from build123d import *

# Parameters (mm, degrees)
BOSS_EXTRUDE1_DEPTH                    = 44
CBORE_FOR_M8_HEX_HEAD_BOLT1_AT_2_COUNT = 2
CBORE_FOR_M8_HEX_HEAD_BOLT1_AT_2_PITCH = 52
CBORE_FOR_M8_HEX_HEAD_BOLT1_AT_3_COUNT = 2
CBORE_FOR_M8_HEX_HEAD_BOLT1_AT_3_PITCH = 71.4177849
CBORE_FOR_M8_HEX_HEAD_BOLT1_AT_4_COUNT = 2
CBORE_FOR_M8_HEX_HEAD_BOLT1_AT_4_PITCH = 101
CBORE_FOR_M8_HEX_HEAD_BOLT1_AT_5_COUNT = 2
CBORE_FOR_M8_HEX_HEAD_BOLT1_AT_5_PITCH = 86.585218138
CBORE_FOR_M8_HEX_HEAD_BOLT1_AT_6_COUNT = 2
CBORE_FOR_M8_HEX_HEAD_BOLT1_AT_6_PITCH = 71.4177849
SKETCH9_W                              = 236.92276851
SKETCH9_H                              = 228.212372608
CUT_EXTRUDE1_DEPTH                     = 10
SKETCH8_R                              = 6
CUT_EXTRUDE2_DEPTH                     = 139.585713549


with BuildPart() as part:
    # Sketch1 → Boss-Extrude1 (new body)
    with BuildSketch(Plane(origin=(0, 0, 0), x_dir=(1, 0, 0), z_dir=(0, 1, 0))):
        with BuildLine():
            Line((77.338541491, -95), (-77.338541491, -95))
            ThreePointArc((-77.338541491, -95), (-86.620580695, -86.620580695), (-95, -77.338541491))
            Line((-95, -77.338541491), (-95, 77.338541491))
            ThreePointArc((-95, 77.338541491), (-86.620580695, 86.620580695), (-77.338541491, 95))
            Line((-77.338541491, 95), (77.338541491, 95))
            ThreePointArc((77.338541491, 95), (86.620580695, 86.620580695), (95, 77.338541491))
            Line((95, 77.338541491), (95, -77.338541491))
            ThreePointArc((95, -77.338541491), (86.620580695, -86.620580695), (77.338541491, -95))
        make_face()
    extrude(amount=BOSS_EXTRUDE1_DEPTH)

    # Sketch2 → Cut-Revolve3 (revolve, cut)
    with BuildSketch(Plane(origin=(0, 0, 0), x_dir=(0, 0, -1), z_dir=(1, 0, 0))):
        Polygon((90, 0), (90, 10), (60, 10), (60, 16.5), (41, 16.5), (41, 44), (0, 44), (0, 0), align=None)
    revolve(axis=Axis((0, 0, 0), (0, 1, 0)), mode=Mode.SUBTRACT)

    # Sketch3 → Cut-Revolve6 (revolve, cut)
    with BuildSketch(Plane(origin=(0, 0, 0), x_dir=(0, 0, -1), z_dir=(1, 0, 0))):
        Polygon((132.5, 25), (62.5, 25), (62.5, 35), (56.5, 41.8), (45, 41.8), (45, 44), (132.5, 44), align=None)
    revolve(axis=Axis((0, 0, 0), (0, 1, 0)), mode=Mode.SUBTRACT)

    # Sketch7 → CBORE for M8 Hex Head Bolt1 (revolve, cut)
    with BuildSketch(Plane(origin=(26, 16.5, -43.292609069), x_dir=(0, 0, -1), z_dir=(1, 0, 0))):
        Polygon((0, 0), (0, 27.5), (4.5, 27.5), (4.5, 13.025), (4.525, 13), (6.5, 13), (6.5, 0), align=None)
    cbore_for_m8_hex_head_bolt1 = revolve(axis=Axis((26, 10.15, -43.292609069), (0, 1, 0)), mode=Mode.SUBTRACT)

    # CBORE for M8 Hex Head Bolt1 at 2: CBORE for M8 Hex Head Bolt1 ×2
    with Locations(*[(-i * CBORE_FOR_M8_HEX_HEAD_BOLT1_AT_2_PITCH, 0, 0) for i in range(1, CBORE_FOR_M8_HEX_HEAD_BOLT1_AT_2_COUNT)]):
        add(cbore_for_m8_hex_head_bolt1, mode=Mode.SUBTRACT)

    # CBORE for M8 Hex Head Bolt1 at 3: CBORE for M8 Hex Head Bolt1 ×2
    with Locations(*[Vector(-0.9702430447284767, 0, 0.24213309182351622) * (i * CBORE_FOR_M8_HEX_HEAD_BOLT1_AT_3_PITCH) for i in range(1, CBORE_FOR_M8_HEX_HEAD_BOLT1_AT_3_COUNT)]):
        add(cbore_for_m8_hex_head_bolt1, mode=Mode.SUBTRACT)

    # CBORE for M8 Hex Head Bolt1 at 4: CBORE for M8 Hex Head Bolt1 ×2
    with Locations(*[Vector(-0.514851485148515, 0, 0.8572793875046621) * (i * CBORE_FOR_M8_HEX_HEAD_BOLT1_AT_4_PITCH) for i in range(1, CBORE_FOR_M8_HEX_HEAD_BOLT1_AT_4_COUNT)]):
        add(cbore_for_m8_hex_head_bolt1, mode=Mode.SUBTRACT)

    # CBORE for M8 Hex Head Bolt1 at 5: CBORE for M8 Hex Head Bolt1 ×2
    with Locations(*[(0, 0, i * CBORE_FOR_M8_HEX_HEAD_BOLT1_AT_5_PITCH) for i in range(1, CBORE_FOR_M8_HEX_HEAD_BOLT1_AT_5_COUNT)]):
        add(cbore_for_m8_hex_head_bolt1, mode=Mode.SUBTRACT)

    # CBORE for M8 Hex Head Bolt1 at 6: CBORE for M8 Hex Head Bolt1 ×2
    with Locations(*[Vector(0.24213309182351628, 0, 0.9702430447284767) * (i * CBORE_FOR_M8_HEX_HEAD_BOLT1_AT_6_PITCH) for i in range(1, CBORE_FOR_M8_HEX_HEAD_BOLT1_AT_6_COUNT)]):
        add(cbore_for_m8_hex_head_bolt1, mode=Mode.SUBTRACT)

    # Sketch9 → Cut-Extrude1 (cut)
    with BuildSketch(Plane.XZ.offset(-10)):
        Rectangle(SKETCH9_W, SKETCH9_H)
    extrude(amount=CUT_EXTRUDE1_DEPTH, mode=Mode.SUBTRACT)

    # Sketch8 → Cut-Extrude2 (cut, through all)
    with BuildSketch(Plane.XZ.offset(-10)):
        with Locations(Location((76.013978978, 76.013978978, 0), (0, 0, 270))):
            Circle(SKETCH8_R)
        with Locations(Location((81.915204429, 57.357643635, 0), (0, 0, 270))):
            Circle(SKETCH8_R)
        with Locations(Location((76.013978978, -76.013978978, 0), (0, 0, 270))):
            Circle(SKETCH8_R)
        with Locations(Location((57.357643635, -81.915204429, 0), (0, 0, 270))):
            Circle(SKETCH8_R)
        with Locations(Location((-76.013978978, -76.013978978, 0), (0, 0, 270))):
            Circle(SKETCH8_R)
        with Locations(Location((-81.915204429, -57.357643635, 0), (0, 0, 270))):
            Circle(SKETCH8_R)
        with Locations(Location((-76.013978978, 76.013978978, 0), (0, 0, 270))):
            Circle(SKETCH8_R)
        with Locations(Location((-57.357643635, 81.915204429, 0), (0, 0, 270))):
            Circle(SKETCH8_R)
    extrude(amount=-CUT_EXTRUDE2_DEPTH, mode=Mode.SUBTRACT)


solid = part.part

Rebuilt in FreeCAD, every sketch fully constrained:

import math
import FreeCAD as App
import Part
import Sketcher
from FreeCAD import Vector
Q = App.Units.Quantity


def add_polygon(sketch, points):
    """Adds a closed chain of lines whose ends are joined by coincident constraints."""
    first, n = sketch.GeometryCount, len(points)
    for a, b in zip(points, points[1:] + points[:1]):
        sketch.addGeometry(Part.LineSegment(App.Vector(*a, 0), App.Vector(*b, 0)), False)
    for i in range(n):
        sketch.addConstraint(Sketcher.Constraint("Coincident", first + i, 2, first + (i + 1) % n, 1))

doc = App.newDocument("Part")
params = doc.addObject("Spreadsheet::Sheet", "Params")
for row, (alias, value) in enumerate([
    ("sketch1_radius", "122.5 mm"),
    ("pad1_length", "44 mm"),
    ("sketch2_width", "10 mm"),
    ("sketch2_width2", "44 mm"),
    ("sketch2_height", "30 mm"),
    ("sketch2_height2", "19 mm"),
    ("sketch2_height3", "41 mm"),
    ("groove_angle", "360 deg"),
    ("sketch3_width", "19 mm"),
    ("sketch3_width2", "10 mm"),
    ("sketch3_height", "70 mm"),
    ("sketch3_width3", "2.2 mm"),
    ("sketch3_height2", "87.5 mm"),
    ("groove2_angle", "360 deg"),
    ("sketch4_width", "13 mm"),
    ("sketch4_width2", "27.5 mm"),
    ("sketch4_height", "6.5 mm"),
    ("sketch4_height2", "4.5 mm"),
    ("groove3_angle", "360 deg"),
    ("linearpattern_pitch", "52 mm"),
    ("linearpattern2_pitch", "71.417785 mm"),
    ("linearpattern3_pitch", "101 mm"),
    ("linearpattern4_pitch", "86.585218 mm"),
    ("linearpattern5_pitch", "71.417785 mm"),
    ("pocket1_length", "10 mm"),
    ("sketch6_diameter", "12 mm"),
], start=1):
    params.set(f"A{row}", alias)
    params.set(f"B{row}", "=" + value)
    params.setAlias(f"B{row}", alias)

body = doc.addObject("PartDesign::Body", "Body")

# Sketch on XZ plane
sketch1 = body.newObject("Sketcher::SketchObject", "Sketch")
sketch1.AttachmentSupport = (doc.getObject("XZ_Plane"), [""])
sketch1.MapMode = "FlatFace"
sketch1.addGeometry(Part.LineSegment(Vector(-77, 95, 0), Vector(77, 95, 0)), False)
sketch1.addGeometry(Part.ArcOfCircle(Part.Circle(Vector(0, 0, 0), Vector(0, 0, 1), 123), math.radians(39.15), math.radians(50.85)), False)
sketch1.addGeometry(Part.LineSegment(Vector(95, 77, 0), Vector(95, -77, 0)), False)
sketch1.addGeometry(Part.ArcOfCircle(Part.Circle(Vector(0, 0, 0), Vector(0, 0, 1), 123), math.radians(-50.85), math.radians(-39.15)), False)
sketch1.addGeometry(Part.LineSegment(Vector(77, -95, 0), Vector(-77, -95, 0)), False)
sketch1.addGeometry(Part.ArcOfCircle(Part.Circle(Vector(0, 0, 0), Vector(0, 0, 1), 123), math.radians(-140.85), math.radians(-129.15)), False)
sketch1.addGeometry(Part.LineSegment(Vector(-95, -77, 0), Vector(-95, 77, 0)), False)
sketch1.addGeometry(Part.ArcOfCircle(Part.Circle(Vector(0, 0, 0), Vector(0, 0, 1), 123), math.radians(129.15), math.radians(140.85)), False)
sketch1.addConstraint(Sketcher.Constraint("Coincident", 0, 2, 1, 2))
sketch1.addConstraint(Sketcher.Constraint("Coincident", 1, 1, 2, 1))
sketch1.addConstraint(Sketcher.Constraint("Coincident", 2, 2, 3, 2))
sketch1.addConstraint(Sketcher.Constraint("Coincident", 3, 1, 4, 1))
sketch1.addConstraint(Sketcher.Constraint("Coincident", 4, 2, 5, 2))
sketch1.addConstraint(Sketcher.Constraint("Coincident", 5, 1, 6, 1))
sketch1.addConstraint(Sketcher.Constraint("Coincident", 6, 2, 7, 2))
sketch1.addConstraint(Sketcher.Constraint("Coincident", 7, 1, 0, 1))
sketch1.addConstraint(Sketcher.Constraint("Horizontal", 0))
sketch1.addConstraint(Sketcher.Constraint("Vertical", 2))
sketch1.addConstraint(Sketcher.Constraint("Horizontal", 4))
sketch1.addConstraint(Sketcher.Constraint("Vertical", 6))
sketch1.addConstraint(Sketcher.Constraint("Coincident", 1, 3, -1, 1))
sketch1.addConstraint(Sketcher.Constraint("Coincident", 3, 3, -1, 1))
sketch1.addConstraint(Sketcher.Constraint("Coincident", 5, 3, -1, 1))
sketch1.addConstraint(Sketcher.Constraint("Coincident", 7, 3, -1, 1))
sketch1.addConstraint(Sketcher.Constraint("Equal", 1, 3))
sketch1.addConstraint(Sketcher.Constraint("Equal", 3, 5))
sketch1.addConstraint(Sketcher.Constraint("Equal", 5, 7))
sketch1.addConstraint(Sketcher.Constraint("Horizontal", 2, 2, 5, 1))
sketch1.addConstraint(Sketcher.Constraint("Vertical", 0, 2, 3, 1))
sketch1.addConstraint(Sketcher.Constraint("Equal", 4, 2))
sketch1.addConstraint(Sketcher.Constraint("Radius", 1, 122.5))
sketch1.addConstraint(Sketcher.Constraint("DistanceY", -1, 1, 0, 2, 95.0))
sketch1.setExpression("Constraints[22]", "Params.sketch1_radius")
pad1 = body.newObject("PartDesign::Pad", "Pad")
pad1.Profile = sketch1
pad1.setExpression("Length", "Params.pad1_length")
pad1.Reversed = True

# Sketch on YZ plane
sketch2 = body.newObject("Sketcher::SketchObject", "Sketch001")
sketch2.AttachmentSupport = (doc.getObject("YZ_Plane"), [""])
sketch2.MapMode = "FlatFace"
add_polygon(sketch2, [(0, -90), (10, -90), (10, -60), (16, -60), (16, -41), (44, -41), (44, 0), (0, 0)])  # lines 0-7
sketch2.addConstraint(Sketcher.Constraint("Horizontal", 0))
sketch2.addConstraint(Sketcher.Constraint("Vertical", 1))
sketch2.addConstraint(Sketcher.Constraint("Horizontal", 2))
sketch2.addConstraint(Sketcher.Constraint("Vertical", 3))
sketch2.addConstraint(Sketcher.Constraint("Horizontal", 4))
sketch2.addConstraint(Sketcher.Constraint("Vertical", 5))
sketch2.addConstraint(Sketcher.Constraint("Horizontal", 6))
sketch2.addConstraint(Sketcher.Constraint("Vertical", 7))
sketch2.addConstraint(Sketcher.Constraint("Coincident", 6, 2, -1, 1))
sketch2.addConstraint(Sketcher.Constraint("DistanceX", 0, 1, 0, 2, 10.0))
sketch2.addConstraint(Sketcher.Constraint("DistanceX", 6, 2, 6, 1, 44.0))
sketch2.addConstraint(Sketcher.Constraint("DistanceY", 1, 1, 1, 2, 30.0))
sketch2.addConstraint(Sketcher.Constraint("DistanceY", 3, 1, 3, 2, 19.0))
sketch2.addConstraint(Sketcher.Constraint("DistanceY", 5, 1, 5, 2, 41.0))
sketch2.addConstraint(Sketcher.Constraint("DistanceX", 2, 1, 2, 2, 6.5))
sketch2.setExpression("Constraints[17]", "Params.sketch2_width")
sketch2.setExpression("Constraints[18]", "Params.sketch2_width2")
sketch2.setExpression("Constraints[19]", "Params.sketch2_height")
sketch2.setExpression("Constraints[20]", "Params.sketch2_height2")
sketch2.setExpression("Constraints[21]", "Params.sketch2_height3")
groove = body.newObject("PartDesign::Groove", "Groove")
groove.Profile = sketch2
groove.ReferenceAxis = (sketch2, ["H_Axis"])
groove.setExpression("Angle", "Params.groove_angle")

# Sketch on YZ plane
sketch3 = body.newObject("Sketcher::SketchObject", "Sketch002")
sketch3.AttachmentSupport = (doc.getObject("YZ_Plane"), [""])
sketch3.MapMode = "FlatFace"
add_polygon(sketch3, [(25, -62.5), (25, -132.5), (44, -132.5), (44, -45), (41.8, -45), (41.8, -56.5), (35, -62.5)])  # lines 0-6
sketch3.addConstraint(Sketcher.Constraint("Vertical", 0))
sketch3.addConstraint(Sketcher.Constraint("Horizontal", 1))
sketch3.addConstraint(Sketcher.Constraint("Vertical", 2))
sketch3.addConstraint(Sketcher.Constraint("Horizontal", 3))
sketch3.addConstraint(Sketcher.Constraint("Vertical", 4))
sketch3.addConstraint(Sketcher.Constraint("Horizontal", 6))
sketch3.addConstraint(Sketcher.Constraint("DistanceX", 1, 1, 1, 2, 19.0))
sketch3.addConstraint(Sketcher.Constraint("DistanceX", 6, 2, 6, 1, 10.0))
sketch3.addConstraint(Sketcher.Constraint("DistanceY", 0, 2, 0, 1, 70.0))
sketch3.addConstraint(Sketcher.Constraint("DistanceX", 3, 2, 3, 1, 2.2))
sketch3.addConstraint(Sketcher.Constraint("DistanceY", 2, 1, 2, 2, 87.5))
sketch3.addConstraint(Sketcher.Constraint("DistanceY", 4, 2, 4, 1, 11.5))
sketch3.addConstraint(Sketcher.Constraint("DistanceX", -1, 1, 0, 2, 25.0))
sketch3.addConstraint(Sketcher.Constraint("DistanceY", 2, 2, -1, 1, 45.0))
sketch3.setExpression("Constraints[13]", "Params.sketch3_width")
sketch3.setExpression("Constraints[14]", "Params.sketch3_width2")
sketch3.setExpression("Constraints[15]", "Params.sketch3_height")
sketch3.setExpression("Constraints[16]", "Params.sketch3_width3")
sketch3.setExpression("Constraints[17]", "Params.sketch3_height2")
groove2 = body.newObject("PartDesign::Groove", "Groove001")
groove2.Profile = sketch3
groove2.ReferenceAxis = (sketch3, ["H_Axis"])
groove2.setExpression("Angle", "Params.groove2_angle")

# Sketch on YZ plane
sketch4 = body.newObject("Sketcher::SketchObject", "Sketch003")
sketch4.AttachmentSupport = (doc.getObject("YZ_Plane"), [""])
sketch4.MapMode = "FlatFace"
sketch4.AttachmentOffset = App.Placement(Vector(0, 0, 26), App.Rotation())
add_polygon(sketch4, [(44, -43.293), (16.5, -43.293), (16.5, -49.793), (29.5, -49.793), (29.5, -47.818), (29.525, -47.793), (44, -47.793)])  # lines 0-6
sketch4.addGeometry(Part.LineSegment(Vector(16.5, -43.293, 0), Vector(44, -43.293, 0)), True)  # axis
sketch4.addConstraint(Sketcher.Constraint("Horizontal", 0))
sketch4.addConstraint(Sketcher.Constraint("Vertical", 1))
sketch4.addConstraint(Sketcher.Constraint("Horizontal", 2))
sketch4.addConstraint(Sketcher.Constraint("Vertical", 3))
sketch4.addConstraint(Sketcher.Constraint("Horizontal", 5))
sketch4.addConstraint(Sketcher.Constraint("Vertical", 6))
sketch4.addConstraint(Sketcher.Constraint("Horizontal", 7))
sketch4.addConstraint(Sketcher.Constraint("Coincident", 7, 1, 0, 2))
sketch4.addConstraint(Sketcher.Constraint("Vertical", 5, 2, 7, 2))
sketch4.addConstraint(Sketcher.Constraint("DistanceX", 2, 1, 2, 2, 13.0))
sketch4.addConstraint(Sketcher.Constraint("Angle", 4, Q("45 deg")))
sketch4.addConstraint(Sketcher.Constraint("DistanceX", 0, 2, 0, 1, 27.5))
sketch4.addConstraint(Sketcher.Constraint("DistanceY", 1, 2, 1, 1, 6.5))
sketch4.addConstraint(Sketcher.Constraint("DistanceY", 6, 1, 6, 2, 4.5))
sketch4.addConstraint(Sketcher.Constraint("DistanceX", -1, 1, 5, 2, 44.0))
sketch4.addConstraint(Sketcher.Constraint("DistanceX", 5, 1, 5, 2, 14.475))
sketch4.addConstraint(Sketcher.Constraint("DistanceY", 0, 2, -1, 1, 43.292609))
sketch4.setExpression("Constraints[16]", "Params.sketch4_width")
sketch4.setExpression("Constraints[18]", "Params.sketch4_width2")
sketch4.setExpression("Constraints[19]", "Params.sketch4_height")
sketch4.setExpression("Constraints[20]", "Params.sketch4_height2")
groove3 = body.newObject("PartDesign::Groove", "Groove002")
groove3.Profile = sketch4
groove3.ReferenceAxis = (sketch4, ["Axis0"])
groove3.setExpression("Angle", "Params.groove3_angle")
doc.recompute()

linearpattern = body.newObject("PartDesign::LinearPattern", "LinearPattern")
linearpattern.Originals = [groove3]
linearpattern.Direction = (doc.getObject("X_Axis"), [""])
linearpattern.Mode = "offset"
linearpattern.setExpression("Offset", "Params.linearpattern_pitch")
linearpattern.Occurrences = 2
linearpattern.Reversed = True
body.Tip = linearpattern
doc.recompute()

datumline = body.newObject("PartDesign::Line", "DatumLine")
datumline.Placement = App.Placement(Vector(0, 0, 0), App.Rotation(Vector(0, 0, 1), Vector(-0.970243045, 0, 0.242133092)))
linearpattern2 = body.newObject("PartDesign::LinearPattern", "LinearPattern001")
linearpattern2.Originals = [groove3]
linearpattern2.Direction = (datumline, [""])
linearpattern2.Mode = "offset"
linearpattern2.setExpression("Offset", "Params.linearpattern2_pitch")
linearpattern2.Occurrences = 2
body.Tip = linearpattern2
doc.recompute()

datumline2 = body.newObject("PartDesign::Line", "DatumLine001")
datumline2.Placement = App.Placement(Vector(0, 0, 0), App.Rotation(Vector(0, 0, 1), Vector(-0.514851485, 0, 0.857279388)))
linearpattern3 = body.newObject("PartDesign::LinearPattern", "LinearPattern002")
linearpattern3.Originals = [groove3]
linearpattern3.Direction = (datumline2, [""])
linearpattern3.Mode = "offset"
linearpattern3.setExpression("Offset", "Params.linearpattern3_pitch")
linearpattern3.Occurrences = 2
body.Tip = linearpattern3
doc.recompute()

linearpattern4 = body.newObject("PartDesign::LinearPattern", "LinearPattern003")
linearpattern4.Originals = [groove3]
linearpattern4.Direction = (doc.getObject("Z_Axis"), [""])
linearpattern4.Mode = "offset"
linearpattern4.setExpression("Offset", "Params.linearpattern4_pitch")
linearpattern4.Occurrences = 2
body.Tip = linearpattern4
doc.recompute()

datumline3 = body.newObject("PartDesign::Line", "DatumLine002")
datumline3.Placement = App.Placement(Vector(0, 0, 0), App.Rotation(Vector(0, 0, 1), Vector(0.242133092, 0, 0.970243045)))
linearpattern5 = body.newObject("PartDesign::LinearPattern", "LinearPattern004")
linearpattern5.Originals = [groove3]
linearpattern5.Direction = (datumline3, [""])
linearpattern5.Mode = "offset"
linearpattern5.setExpression("Offset", "Params.linearpattern5_pitch")
linearpattern5.Occurrences = 2
body.Tip = linearpattern5

# Sketch on XZ plane
sketch5 = body.newObject("Sketcher::SketchObject", "Sketch004")
sketch5.AttachmentSupport = (doc.getObject("XZ_Plane"), [""])
sketch5.MapMode = "FlatFace"
sketch5.AttachmentOffset = App.Placement(Vector(0, 0, -10), App.Rotation())
add_polygon(sketch5, [(-118, 114), (-118, -114), (118, -114), (118, 114)])  # lines 0-3
sketch5.addConstraint(Sketcher.Constraint("Vertical", 0))
sketch5.addConstraint(Sketcher.Constraint("Horizontal", 1))
sketch5.addConstraint(Sketcher.Constraint("Vertical", 2))
sketch5.addConstraint(Sketcher.Constraint("Horizontal", 3))
sketch5.addConstraint(Sketcher.Constraint("Symmetric", 0, 2, 2, 2, -1, 1))
sketch5.addConstraint(Sketcher.Constraint("DistanceX", 1, 1, 1, 2, 236.922769))
sketch5.addConstraint(Sketcher.Constraint("DistanceY", 0, 2, 0, 1, 228.212373))
pocket1 = body.newObject("PartDesign::Pocket", "Pocket")
pocket1.Profile = sketch5
pocket1.setExpression("Length", "Params.pocket1_length")
pocket1.Reversed = True

# Sketch on XZ plane
sketch6 = body.newObject("Sketcher::SketchObject", "Sketch005")
sketch6.AttachmentSupport = (doc.getObject("XZ_Plane"), [""])
sketch6.MapMode = "FlatFace"
sketch6.AttachmentOffset = App.Placement(Vector(0, 0, -10), App.Rotation())
sketch6.addGeometry(Part.Circle(Vector(76, 76, 0), Vector(0, 0, 1), 6), False)
sketch6.addGeometry(Part.Circle(Vector(82, 57, 0), Vector(0, 0, 1), 6), False)
sketch6.addGeometry(Part.Circle(Vector(76, -76, 0), Vector(0, 0, 1), 6), False)
sketch6.addGeometry(Part.Circle(Vector(57, -82, 0), Vector(0, 0, 1), 6), False)
sketch6.addGeometry(Part.Circle(Vector(-76, -76, 0), Vector(0, 0, 1), 6), False)
sketch6.addGeometry(Part.Circle(Vector(-82, -57, 0), Vector(0, 0, 1), 6), False)
sketch6.addGeometry(Part.Circle(Vector(-76, 76, 0), Vector(0, 0, 1), 6), False)
sketch6.addGeometry(Part.Circle(Vector(-57, 82, 0), Vector(0, 0, 1), 6), False)
sketch6.addConstraint(Sketcher.Constraint("Equal", 0, 1))
sketch6.addConstraint(Sketcher.Constraint("Equal", 1, 2))
sketch6.addConstraint(Sketcher.Constraint("Equal", 2, 3))
sketch6.addConstraint(Sketcher.Constraint("Equal", 3, 4))
sketch6.addConstraint(Sketcher.Constraint("Equal", 4, 5))
sketch6.addConstraint(Sketcher.Constraint("Equal", 5, 6))
sketch6.addConstraint(Sketcher.Constraint("Equal", 6, 7))
sketch6.addConstraint(Sketcher.Constraint("Symmetric", 0, 3, 4, 3, -1, 1))
sketch6.addConstraint(Sketcher.Constraint("Symmetric", 1, 3, 5, 3, -1, 1))
sketch6.addConstraint(Sketcher.Constraint("Symmetric", 2, 3, 6, 3, -1, 1))
sketch6.addConstraint(Sketcher.Constraint("Symmetric", 3, 3, 7, 3, -1, 1))
sketch6.addConstraint(Sketcher.Constraint("Symmetric", 2, 3, 4, 3, -2))
sketch6.addConstraint(Sketcher.Constraint("Diameter", 0, 12.0))
sketch6.addConstraint(Sketcher.Constraint("DistanceX", -1, 1, 0, 3, 76.013979))
sketch6.addConstraint(Sketcher.Constraint("DistanceY", -1, 1, 0, 3, 76.013979))
sketch6.addConstraint(Sketcher.Constraint("DistanceX", 3, 3, 1, 3, 24.557561))
sketch6.addConstraint(Sketcher.Constraint("DistanceY", 3, 3, 1, 3, 139.272848))
sketch6.addConstraint(Sketcher.Constraint("DistanceX", 5, 3, 3, 3, 139.272848))
sketch6.addConstraint(Sketcher.Constraint("DistanceY", 3, 3, 5, 3, 24.557561))
sketch6.setExpression("Constraints[12]", "Params.sketch6_diameter")
pocket2 = body.newObject("PartDesign::Pocket", "Pocket001")
pocket2.Profile = sketch6
pocket2.Type = "ThroughAll"

doc.recompute()
